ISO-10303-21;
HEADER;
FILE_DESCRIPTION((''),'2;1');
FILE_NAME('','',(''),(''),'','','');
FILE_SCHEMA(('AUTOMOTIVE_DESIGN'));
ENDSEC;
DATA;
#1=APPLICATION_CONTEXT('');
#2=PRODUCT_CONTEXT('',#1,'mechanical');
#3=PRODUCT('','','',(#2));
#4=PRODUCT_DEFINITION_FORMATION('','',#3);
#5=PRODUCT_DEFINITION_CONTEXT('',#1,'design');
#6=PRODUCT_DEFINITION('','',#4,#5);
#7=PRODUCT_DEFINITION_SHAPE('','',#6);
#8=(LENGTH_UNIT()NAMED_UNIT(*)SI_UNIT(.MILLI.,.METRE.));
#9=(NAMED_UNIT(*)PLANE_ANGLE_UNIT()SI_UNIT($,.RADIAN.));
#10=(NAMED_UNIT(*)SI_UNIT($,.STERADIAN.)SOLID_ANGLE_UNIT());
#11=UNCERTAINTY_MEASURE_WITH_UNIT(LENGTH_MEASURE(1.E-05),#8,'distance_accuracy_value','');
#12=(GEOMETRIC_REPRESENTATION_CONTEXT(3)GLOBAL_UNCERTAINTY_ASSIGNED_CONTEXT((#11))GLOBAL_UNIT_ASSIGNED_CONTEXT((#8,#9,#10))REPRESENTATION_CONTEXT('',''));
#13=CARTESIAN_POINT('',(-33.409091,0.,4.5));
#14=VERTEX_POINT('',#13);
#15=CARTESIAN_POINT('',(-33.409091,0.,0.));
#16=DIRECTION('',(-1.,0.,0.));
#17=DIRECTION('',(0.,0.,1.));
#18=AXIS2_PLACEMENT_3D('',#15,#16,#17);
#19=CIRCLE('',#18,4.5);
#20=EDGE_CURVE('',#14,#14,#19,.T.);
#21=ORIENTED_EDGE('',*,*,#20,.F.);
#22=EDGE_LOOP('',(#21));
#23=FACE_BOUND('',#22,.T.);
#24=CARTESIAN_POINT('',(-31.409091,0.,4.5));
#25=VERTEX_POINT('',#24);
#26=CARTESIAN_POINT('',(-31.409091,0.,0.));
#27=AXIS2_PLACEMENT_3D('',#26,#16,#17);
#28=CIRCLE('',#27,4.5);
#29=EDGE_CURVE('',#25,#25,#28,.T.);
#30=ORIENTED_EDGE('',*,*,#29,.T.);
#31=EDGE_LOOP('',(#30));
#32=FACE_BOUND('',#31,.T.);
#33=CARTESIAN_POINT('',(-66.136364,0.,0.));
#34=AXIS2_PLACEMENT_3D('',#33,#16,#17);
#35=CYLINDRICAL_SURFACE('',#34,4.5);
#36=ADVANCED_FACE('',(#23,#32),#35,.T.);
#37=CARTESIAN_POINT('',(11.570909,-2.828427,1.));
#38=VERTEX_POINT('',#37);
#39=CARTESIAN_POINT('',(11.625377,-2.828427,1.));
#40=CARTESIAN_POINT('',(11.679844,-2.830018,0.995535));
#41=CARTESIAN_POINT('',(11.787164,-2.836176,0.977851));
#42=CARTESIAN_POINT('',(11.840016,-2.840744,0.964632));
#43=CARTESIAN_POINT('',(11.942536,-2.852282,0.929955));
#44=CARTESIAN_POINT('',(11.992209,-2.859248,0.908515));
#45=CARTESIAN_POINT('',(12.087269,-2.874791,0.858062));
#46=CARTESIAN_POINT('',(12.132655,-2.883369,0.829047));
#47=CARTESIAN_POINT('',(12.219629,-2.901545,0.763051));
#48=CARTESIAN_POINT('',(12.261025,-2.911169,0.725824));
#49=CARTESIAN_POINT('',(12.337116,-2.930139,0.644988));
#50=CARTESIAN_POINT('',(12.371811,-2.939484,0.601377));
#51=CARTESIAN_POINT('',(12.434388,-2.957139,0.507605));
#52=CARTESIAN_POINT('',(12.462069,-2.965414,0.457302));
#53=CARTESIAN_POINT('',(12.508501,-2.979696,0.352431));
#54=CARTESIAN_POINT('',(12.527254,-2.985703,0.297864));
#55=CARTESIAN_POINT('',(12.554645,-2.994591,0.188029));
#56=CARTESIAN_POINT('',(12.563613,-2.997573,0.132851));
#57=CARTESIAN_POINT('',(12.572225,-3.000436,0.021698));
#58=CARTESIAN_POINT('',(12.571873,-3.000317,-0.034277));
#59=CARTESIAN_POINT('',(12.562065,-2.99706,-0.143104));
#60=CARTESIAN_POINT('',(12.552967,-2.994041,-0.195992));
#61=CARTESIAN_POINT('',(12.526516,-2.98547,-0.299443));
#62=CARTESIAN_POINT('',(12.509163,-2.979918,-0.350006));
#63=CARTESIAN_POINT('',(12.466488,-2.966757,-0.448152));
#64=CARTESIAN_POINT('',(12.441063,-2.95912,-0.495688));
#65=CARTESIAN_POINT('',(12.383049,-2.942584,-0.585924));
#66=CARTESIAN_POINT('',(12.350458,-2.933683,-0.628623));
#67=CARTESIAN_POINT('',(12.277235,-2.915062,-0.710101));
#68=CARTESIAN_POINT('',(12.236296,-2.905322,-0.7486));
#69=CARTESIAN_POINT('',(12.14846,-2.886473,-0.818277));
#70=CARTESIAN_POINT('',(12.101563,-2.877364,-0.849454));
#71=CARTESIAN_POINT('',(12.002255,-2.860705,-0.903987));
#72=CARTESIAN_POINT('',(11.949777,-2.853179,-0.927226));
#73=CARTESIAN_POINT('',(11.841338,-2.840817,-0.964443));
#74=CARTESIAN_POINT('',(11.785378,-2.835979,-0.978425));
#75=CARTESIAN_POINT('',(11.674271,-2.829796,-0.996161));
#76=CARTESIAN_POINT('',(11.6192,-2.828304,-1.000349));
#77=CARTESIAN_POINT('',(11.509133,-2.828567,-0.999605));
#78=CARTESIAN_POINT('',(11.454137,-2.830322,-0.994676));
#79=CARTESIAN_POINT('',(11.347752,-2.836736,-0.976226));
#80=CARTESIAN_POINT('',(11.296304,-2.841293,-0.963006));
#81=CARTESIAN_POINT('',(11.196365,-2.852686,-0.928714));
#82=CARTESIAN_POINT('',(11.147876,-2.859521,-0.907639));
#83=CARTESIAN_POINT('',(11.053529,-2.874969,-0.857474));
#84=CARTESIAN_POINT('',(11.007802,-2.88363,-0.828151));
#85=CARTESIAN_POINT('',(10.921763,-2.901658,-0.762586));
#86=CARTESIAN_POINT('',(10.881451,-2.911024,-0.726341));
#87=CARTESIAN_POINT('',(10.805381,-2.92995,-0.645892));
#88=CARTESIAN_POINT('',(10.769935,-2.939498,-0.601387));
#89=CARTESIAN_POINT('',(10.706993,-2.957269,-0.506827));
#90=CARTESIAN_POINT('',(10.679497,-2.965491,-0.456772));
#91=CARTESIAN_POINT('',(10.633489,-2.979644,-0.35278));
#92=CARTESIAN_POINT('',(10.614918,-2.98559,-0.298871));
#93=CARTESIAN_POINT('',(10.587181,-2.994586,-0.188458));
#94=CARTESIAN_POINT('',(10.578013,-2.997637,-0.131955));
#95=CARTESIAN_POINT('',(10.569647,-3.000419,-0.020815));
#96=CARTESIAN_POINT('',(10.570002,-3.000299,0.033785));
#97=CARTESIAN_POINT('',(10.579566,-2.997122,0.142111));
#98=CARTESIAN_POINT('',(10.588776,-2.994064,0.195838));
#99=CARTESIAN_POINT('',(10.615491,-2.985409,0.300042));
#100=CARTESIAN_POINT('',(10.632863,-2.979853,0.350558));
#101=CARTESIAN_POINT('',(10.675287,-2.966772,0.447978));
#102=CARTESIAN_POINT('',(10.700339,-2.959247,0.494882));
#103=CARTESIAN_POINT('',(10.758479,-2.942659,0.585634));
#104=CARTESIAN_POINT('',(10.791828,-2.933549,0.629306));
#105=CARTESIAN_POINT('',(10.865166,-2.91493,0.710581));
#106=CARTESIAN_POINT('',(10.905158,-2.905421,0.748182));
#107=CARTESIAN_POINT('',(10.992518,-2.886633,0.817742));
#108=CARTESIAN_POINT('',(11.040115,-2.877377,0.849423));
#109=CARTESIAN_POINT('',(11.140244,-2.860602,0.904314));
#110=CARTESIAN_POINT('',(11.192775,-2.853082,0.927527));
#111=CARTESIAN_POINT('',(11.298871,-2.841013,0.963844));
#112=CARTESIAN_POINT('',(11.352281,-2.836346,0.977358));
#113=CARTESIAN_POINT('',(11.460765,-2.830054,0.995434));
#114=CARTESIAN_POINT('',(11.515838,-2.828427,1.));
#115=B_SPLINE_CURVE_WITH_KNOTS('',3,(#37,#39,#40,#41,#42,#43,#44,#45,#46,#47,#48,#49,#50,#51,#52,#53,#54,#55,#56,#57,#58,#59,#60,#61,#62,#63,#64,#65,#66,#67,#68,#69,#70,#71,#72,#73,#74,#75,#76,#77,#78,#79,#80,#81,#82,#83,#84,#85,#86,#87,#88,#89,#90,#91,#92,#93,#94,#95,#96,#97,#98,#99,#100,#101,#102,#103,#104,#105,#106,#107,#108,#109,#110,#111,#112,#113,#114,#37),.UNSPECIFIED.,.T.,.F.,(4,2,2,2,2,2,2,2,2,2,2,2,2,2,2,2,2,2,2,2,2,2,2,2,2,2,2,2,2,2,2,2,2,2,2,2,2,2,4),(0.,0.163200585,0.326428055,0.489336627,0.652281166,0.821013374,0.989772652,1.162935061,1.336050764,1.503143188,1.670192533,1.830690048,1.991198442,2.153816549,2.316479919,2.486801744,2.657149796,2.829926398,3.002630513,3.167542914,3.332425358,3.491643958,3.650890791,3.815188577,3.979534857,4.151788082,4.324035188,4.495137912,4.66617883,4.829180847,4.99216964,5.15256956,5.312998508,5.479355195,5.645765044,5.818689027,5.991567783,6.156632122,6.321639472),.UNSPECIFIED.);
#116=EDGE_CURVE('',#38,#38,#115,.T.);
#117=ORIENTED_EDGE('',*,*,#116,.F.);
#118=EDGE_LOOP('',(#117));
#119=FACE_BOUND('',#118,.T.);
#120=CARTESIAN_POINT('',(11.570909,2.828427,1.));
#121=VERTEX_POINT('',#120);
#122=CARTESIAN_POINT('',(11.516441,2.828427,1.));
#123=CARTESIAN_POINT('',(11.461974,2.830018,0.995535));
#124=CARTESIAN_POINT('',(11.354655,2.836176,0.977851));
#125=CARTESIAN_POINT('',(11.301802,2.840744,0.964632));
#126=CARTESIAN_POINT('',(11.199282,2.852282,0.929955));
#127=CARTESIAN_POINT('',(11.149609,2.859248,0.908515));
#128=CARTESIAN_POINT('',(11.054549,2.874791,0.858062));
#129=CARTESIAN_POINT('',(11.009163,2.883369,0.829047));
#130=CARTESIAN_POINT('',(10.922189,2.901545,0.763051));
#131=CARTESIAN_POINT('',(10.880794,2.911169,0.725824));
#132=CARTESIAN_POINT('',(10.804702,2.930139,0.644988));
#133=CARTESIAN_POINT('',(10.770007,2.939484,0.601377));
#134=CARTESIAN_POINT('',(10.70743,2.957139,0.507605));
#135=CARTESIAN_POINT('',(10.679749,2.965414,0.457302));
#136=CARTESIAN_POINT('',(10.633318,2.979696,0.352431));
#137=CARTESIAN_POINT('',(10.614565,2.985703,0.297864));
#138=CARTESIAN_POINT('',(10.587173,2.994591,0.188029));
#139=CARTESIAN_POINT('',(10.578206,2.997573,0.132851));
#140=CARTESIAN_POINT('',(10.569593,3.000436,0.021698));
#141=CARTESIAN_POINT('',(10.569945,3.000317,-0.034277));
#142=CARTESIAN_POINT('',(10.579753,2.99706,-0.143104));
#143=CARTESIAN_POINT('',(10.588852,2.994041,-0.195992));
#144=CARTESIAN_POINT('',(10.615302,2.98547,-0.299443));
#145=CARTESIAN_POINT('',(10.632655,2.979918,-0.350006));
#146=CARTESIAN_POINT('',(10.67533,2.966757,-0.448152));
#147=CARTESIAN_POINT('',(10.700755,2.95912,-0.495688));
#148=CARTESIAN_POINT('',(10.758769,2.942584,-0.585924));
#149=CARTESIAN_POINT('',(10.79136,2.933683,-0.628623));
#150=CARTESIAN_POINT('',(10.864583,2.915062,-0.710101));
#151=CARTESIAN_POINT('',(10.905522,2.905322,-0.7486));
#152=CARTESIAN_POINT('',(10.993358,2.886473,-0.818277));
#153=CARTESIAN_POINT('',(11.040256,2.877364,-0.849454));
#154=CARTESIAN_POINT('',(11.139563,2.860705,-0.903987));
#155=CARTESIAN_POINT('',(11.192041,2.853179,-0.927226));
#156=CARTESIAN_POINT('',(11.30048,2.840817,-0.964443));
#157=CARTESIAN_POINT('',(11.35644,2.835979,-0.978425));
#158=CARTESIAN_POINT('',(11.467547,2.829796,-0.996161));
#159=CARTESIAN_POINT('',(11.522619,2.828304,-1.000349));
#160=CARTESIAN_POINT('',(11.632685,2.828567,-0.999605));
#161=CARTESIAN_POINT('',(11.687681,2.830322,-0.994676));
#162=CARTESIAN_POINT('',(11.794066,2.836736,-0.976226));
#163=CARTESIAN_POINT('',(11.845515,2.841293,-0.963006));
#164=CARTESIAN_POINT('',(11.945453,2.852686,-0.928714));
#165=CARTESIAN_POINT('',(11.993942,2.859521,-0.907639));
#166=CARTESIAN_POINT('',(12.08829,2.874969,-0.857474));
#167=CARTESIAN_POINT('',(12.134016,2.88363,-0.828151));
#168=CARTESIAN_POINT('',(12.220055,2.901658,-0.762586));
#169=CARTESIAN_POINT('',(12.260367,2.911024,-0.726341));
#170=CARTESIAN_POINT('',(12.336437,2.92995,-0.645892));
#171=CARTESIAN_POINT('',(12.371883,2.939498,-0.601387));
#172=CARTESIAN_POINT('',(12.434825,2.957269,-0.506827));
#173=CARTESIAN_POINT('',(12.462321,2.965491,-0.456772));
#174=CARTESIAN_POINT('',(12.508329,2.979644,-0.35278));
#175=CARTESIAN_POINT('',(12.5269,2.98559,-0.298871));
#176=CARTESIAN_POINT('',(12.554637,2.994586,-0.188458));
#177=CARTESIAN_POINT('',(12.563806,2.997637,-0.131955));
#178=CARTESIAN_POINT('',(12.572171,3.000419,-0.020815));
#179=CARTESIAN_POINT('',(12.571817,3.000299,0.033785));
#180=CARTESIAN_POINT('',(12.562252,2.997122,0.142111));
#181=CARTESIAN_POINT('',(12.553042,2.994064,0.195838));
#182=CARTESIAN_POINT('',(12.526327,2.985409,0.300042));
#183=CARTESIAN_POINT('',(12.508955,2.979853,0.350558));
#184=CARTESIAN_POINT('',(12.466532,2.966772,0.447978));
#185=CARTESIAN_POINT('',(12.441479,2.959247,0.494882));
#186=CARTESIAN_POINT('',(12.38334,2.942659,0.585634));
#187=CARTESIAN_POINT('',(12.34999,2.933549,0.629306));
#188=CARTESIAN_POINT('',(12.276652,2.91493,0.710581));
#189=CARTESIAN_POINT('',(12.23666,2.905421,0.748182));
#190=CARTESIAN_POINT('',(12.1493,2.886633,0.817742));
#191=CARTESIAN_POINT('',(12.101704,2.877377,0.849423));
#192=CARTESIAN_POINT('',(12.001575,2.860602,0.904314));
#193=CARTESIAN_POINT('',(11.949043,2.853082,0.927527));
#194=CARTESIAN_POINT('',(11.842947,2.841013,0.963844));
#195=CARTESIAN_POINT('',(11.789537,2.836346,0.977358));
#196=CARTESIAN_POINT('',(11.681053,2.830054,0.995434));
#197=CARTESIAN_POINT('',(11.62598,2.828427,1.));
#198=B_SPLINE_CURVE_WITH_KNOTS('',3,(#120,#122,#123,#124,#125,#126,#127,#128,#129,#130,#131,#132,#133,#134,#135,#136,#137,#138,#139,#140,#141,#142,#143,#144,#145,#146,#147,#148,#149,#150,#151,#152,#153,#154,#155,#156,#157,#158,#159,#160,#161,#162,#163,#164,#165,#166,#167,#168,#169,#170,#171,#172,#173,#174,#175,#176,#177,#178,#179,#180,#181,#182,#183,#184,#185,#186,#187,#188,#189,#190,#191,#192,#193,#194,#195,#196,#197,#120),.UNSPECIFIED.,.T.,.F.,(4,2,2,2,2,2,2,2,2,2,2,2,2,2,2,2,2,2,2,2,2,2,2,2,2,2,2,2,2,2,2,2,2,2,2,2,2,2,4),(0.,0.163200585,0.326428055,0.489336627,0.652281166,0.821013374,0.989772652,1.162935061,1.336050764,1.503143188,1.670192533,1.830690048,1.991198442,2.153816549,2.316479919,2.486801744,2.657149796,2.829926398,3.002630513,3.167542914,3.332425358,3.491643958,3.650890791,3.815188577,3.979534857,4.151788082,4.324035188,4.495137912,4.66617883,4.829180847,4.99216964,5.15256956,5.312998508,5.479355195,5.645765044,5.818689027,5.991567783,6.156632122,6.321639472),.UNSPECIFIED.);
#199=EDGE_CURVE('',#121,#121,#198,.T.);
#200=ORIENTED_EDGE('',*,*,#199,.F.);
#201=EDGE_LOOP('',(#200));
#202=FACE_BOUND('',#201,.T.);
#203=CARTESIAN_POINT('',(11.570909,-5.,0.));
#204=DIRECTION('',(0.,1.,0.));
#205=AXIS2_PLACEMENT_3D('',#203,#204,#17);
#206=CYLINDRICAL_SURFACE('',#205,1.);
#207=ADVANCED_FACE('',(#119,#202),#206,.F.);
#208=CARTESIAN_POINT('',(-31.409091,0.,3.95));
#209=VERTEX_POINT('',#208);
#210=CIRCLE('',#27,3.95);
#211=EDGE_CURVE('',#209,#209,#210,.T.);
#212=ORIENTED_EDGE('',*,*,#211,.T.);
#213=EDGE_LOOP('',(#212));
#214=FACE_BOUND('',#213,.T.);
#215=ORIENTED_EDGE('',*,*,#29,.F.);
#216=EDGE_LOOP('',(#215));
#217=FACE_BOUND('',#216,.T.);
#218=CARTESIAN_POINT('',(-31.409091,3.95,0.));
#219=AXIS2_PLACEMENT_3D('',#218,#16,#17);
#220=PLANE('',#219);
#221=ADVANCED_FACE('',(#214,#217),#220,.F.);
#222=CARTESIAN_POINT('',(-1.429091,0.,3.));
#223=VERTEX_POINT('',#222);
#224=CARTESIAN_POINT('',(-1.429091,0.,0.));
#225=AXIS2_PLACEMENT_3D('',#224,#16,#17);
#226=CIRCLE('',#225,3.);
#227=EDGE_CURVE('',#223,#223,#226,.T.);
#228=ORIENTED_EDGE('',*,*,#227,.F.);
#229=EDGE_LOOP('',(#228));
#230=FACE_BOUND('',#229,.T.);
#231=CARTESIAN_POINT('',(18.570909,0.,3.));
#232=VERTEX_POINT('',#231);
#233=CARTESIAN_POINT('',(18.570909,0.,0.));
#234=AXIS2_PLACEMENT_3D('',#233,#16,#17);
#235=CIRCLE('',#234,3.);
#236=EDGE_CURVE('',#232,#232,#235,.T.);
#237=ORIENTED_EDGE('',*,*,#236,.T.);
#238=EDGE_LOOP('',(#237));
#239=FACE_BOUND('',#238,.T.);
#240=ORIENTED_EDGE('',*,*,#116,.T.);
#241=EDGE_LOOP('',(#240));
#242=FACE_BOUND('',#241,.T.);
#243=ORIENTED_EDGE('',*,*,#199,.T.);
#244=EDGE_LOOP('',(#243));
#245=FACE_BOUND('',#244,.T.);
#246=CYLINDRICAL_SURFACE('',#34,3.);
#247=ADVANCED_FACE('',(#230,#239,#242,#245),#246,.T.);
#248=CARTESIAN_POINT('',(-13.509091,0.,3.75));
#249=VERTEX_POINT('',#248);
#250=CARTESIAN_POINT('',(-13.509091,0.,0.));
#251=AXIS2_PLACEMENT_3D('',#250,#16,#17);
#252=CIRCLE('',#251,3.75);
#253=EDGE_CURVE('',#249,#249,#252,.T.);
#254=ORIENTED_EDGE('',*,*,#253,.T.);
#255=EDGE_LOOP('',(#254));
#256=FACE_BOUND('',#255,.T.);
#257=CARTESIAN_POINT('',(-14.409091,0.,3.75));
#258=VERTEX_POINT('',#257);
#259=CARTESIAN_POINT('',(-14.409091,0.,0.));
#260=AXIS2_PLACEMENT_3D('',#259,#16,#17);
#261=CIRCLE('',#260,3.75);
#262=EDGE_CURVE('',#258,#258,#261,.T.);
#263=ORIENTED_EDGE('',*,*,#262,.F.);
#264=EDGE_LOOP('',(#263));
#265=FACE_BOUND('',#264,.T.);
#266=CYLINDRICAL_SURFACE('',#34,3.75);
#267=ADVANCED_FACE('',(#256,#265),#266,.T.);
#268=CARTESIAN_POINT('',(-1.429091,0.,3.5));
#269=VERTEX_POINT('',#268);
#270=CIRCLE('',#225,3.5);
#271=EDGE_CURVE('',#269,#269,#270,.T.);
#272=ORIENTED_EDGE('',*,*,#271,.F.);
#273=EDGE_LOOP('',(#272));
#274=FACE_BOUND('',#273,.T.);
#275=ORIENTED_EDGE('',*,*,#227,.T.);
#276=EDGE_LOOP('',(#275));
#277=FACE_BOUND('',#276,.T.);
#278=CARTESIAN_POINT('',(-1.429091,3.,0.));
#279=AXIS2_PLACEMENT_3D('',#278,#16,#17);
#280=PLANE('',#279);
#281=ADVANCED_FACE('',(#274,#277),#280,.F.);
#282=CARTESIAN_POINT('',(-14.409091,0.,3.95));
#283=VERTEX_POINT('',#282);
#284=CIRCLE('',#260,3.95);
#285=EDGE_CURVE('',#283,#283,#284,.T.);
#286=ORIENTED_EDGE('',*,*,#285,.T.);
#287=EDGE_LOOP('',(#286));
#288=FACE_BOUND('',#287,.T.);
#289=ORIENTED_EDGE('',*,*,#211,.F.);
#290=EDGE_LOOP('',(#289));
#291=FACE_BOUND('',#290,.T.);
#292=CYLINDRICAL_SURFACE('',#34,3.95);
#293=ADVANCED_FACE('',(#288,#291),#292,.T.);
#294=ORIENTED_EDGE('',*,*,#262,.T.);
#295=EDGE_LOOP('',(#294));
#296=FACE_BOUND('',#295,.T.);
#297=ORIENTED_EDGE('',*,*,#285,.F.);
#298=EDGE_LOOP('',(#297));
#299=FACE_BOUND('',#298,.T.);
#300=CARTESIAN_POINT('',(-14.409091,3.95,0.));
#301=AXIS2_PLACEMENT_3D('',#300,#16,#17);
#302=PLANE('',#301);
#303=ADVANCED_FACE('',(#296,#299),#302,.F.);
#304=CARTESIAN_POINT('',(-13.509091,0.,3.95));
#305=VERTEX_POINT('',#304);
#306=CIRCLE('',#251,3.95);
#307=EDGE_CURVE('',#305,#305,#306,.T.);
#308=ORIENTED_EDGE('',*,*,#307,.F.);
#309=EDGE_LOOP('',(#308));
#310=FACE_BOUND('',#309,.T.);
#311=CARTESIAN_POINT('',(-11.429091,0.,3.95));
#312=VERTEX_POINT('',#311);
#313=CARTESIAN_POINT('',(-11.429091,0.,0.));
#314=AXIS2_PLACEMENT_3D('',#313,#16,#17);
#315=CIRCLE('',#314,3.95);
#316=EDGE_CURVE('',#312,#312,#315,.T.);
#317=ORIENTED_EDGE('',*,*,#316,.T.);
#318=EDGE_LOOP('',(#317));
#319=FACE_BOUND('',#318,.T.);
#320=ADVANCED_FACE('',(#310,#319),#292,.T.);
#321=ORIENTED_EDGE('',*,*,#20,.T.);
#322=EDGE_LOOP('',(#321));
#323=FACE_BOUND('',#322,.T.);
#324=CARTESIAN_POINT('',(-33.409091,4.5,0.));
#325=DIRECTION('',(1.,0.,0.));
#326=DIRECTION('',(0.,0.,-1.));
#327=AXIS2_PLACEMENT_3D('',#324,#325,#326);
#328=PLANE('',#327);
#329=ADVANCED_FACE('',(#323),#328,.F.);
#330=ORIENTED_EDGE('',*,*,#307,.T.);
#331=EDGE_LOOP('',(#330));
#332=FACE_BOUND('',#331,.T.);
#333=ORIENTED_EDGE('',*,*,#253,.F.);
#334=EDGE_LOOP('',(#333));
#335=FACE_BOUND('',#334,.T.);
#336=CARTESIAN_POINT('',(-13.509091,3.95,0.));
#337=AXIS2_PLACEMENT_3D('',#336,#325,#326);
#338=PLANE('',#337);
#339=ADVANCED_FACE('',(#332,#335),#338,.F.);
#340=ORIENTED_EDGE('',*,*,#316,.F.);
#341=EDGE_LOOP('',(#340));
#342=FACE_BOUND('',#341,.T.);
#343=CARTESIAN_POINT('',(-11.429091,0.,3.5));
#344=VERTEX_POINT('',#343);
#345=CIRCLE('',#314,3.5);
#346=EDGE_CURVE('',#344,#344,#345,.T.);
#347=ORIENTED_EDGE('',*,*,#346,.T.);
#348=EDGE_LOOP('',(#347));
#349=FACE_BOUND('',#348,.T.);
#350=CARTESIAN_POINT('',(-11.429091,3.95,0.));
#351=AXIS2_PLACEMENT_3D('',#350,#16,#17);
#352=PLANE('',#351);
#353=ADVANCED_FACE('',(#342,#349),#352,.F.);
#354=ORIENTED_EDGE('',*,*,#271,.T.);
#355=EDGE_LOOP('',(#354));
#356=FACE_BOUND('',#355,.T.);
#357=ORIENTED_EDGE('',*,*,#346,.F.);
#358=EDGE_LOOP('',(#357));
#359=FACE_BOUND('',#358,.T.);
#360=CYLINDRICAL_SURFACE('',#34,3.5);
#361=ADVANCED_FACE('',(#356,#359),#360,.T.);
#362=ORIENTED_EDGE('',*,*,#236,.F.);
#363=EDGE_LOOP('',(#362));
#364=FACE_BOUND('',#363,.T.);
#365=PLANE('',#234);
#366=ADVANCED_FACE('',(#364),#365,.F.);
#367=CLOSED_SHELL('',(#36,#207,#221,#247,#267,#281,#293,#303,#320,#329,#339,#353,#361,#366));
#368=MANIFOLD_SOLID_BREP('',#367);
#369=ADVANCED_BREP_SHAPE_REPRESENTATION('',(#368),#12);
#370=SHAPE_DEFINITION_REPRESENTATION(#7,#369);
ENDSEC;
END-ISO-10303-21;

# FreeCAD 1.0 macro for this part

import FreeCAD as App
import Part
import Sketcher


def add_polygon(sketch, points):
    """Adds a closed chain of lines whose ends are joined by coincident constraints."""
    first, n = sketch.GeometryCount, len(points)
    for a, b in zip(points, points[1:] + points[:1]):
        sketch.addGeometry(Part.LineSegment(App.Vector(*a, 0), App.Vector(*b, 0)), False)
    for i in range(n):
        sketch.addConstraint(Sketcher.Constraint("Coincident", first + i, 2, first + (i + 1) % n, 1))

doc = App.newDocument("Part")
body = doc.addObject("PartDesign::Body", "Body")

sketch1 = body.newObject("Sketcher::SketchObject", "Sketch")
sketch1.AttachmentSupport = (doc.getObject("XY_Plane"), [""])
sketch1.MapMode = "FlatFace"
add_polygon(sketch1, [(-33.41, 0), (18.57, 0), (18.57, 3), (-1.43, 3), (-1.43, 3.5), (-11.43, 3.5), (-11.43, 3.95), (-13.51, 3.95), (-13.51, 3.75), (-14.41, 3.75), (-14.41, 3.95), (-31.41, 3.95), (-31.41, 4.5), (-33.41, 4.5)])
sketch1.addConstraint([
    Sketcher.Constraint("Horizontal", 0),
    Sketcher.Constraint("Vertical", 1),
    Sketcher.Constraint("Horizontal", 2),
    Sketcher.Constraint("Vertical", 3),
    Sketcher.Constraint("Horizontal", 4),
    Sketcher.Constraint("Vertical", 5),
    Sketcher.Constraint("Horizontal", 6),
    Sketcher.Constraint("Vertical", 7),
    Sketcher.Constraint("Horizontal", 8),
    Sketcher.Constraint("Vertical", 9),
    Sketcher.Constraint("Horizontal", 10),
    Sketcher.Constraint("Vertical", 11),
    Sketcher.Constraint("Horizontal", 12),
    Sketcher.Constraint("Vertical", 13),
    Sketcher.Constraint("PointOnObject", 0, 2, -1),
    Sketcher.Constraint("Horizontal", 6, 2, 9, 2),
    Sketcher.Constraint("DistanceX", 2, 2, 2, 1, 20.0),
    Sketcher.Constraint("DistanceX", 4, 2, 4, 1, 10.0),
    Sketcher.Constraint("DistanceX", 10, 2, 10, 1, 17.0),
    Sketcher.Constraint("DistanceX", 12, 2, 12, 1, 2.0),
    Sketcher.Constraint("DistanceY", 1, 1, 1, 2, 3.0),
    Sketcher.Constraint("DistanceX", 8, 2, 8, 1, 0.9),
    Sketcher.Constraint("DistanceY", 3, 1, 3, 2, 0.5),
    Sketcher.Constraint("DistanceY", 7, 2, 7, 1, 0.2),
    Sketcher.Constraint("DistanceY", 13, 2, 13, 1, 4.5),
    Sketcher.Constraint("DistanceX", 0, 1, 0, 2, 51.98),
    Sketcher.Constraint("DistanceY", 5, 1, 5, 2, 0.45),
    Sketcher.Constraint("DistanceX", -1, 1, 0, 2, 18.570909),
])
revolution = body.newObject("PartDesign::Revolution", "Revolution")
revolution.Profile = sketch1
revolution.ReferenceAxis = (sketch1, ["H_Axis"])
revolution.Angle = 360

sketch2 = body.newObject("Sketcher::SketchObject", "Sketch001")
sketch2.AttachmentSupport = (doc.getObject("XZ_Plane"), [""])
sketch2.MapMode = "FlatFace"
sketch2.addGeometry(Part.Circle(App.Vector(11.6, 0, 0), App.Vector(0, 0, 1), 1), False)
sketch2.addConstraint([
    Sketcher.Constraint("PointOnObject", 0, 3, -1),
    Sketcher.Constraint("Diameter", 0, 2.0),
    Sketcher.Constraint("DistanceX", -1, 1, 0, 3, 11.570909),
])
pocket1 = body.newObject("PartDesign::Pocket", "Pocket")
pocket1.Profile = sketch2
pocket1.Length = 10
pocket1.Midplane = True

doc.recompute()
